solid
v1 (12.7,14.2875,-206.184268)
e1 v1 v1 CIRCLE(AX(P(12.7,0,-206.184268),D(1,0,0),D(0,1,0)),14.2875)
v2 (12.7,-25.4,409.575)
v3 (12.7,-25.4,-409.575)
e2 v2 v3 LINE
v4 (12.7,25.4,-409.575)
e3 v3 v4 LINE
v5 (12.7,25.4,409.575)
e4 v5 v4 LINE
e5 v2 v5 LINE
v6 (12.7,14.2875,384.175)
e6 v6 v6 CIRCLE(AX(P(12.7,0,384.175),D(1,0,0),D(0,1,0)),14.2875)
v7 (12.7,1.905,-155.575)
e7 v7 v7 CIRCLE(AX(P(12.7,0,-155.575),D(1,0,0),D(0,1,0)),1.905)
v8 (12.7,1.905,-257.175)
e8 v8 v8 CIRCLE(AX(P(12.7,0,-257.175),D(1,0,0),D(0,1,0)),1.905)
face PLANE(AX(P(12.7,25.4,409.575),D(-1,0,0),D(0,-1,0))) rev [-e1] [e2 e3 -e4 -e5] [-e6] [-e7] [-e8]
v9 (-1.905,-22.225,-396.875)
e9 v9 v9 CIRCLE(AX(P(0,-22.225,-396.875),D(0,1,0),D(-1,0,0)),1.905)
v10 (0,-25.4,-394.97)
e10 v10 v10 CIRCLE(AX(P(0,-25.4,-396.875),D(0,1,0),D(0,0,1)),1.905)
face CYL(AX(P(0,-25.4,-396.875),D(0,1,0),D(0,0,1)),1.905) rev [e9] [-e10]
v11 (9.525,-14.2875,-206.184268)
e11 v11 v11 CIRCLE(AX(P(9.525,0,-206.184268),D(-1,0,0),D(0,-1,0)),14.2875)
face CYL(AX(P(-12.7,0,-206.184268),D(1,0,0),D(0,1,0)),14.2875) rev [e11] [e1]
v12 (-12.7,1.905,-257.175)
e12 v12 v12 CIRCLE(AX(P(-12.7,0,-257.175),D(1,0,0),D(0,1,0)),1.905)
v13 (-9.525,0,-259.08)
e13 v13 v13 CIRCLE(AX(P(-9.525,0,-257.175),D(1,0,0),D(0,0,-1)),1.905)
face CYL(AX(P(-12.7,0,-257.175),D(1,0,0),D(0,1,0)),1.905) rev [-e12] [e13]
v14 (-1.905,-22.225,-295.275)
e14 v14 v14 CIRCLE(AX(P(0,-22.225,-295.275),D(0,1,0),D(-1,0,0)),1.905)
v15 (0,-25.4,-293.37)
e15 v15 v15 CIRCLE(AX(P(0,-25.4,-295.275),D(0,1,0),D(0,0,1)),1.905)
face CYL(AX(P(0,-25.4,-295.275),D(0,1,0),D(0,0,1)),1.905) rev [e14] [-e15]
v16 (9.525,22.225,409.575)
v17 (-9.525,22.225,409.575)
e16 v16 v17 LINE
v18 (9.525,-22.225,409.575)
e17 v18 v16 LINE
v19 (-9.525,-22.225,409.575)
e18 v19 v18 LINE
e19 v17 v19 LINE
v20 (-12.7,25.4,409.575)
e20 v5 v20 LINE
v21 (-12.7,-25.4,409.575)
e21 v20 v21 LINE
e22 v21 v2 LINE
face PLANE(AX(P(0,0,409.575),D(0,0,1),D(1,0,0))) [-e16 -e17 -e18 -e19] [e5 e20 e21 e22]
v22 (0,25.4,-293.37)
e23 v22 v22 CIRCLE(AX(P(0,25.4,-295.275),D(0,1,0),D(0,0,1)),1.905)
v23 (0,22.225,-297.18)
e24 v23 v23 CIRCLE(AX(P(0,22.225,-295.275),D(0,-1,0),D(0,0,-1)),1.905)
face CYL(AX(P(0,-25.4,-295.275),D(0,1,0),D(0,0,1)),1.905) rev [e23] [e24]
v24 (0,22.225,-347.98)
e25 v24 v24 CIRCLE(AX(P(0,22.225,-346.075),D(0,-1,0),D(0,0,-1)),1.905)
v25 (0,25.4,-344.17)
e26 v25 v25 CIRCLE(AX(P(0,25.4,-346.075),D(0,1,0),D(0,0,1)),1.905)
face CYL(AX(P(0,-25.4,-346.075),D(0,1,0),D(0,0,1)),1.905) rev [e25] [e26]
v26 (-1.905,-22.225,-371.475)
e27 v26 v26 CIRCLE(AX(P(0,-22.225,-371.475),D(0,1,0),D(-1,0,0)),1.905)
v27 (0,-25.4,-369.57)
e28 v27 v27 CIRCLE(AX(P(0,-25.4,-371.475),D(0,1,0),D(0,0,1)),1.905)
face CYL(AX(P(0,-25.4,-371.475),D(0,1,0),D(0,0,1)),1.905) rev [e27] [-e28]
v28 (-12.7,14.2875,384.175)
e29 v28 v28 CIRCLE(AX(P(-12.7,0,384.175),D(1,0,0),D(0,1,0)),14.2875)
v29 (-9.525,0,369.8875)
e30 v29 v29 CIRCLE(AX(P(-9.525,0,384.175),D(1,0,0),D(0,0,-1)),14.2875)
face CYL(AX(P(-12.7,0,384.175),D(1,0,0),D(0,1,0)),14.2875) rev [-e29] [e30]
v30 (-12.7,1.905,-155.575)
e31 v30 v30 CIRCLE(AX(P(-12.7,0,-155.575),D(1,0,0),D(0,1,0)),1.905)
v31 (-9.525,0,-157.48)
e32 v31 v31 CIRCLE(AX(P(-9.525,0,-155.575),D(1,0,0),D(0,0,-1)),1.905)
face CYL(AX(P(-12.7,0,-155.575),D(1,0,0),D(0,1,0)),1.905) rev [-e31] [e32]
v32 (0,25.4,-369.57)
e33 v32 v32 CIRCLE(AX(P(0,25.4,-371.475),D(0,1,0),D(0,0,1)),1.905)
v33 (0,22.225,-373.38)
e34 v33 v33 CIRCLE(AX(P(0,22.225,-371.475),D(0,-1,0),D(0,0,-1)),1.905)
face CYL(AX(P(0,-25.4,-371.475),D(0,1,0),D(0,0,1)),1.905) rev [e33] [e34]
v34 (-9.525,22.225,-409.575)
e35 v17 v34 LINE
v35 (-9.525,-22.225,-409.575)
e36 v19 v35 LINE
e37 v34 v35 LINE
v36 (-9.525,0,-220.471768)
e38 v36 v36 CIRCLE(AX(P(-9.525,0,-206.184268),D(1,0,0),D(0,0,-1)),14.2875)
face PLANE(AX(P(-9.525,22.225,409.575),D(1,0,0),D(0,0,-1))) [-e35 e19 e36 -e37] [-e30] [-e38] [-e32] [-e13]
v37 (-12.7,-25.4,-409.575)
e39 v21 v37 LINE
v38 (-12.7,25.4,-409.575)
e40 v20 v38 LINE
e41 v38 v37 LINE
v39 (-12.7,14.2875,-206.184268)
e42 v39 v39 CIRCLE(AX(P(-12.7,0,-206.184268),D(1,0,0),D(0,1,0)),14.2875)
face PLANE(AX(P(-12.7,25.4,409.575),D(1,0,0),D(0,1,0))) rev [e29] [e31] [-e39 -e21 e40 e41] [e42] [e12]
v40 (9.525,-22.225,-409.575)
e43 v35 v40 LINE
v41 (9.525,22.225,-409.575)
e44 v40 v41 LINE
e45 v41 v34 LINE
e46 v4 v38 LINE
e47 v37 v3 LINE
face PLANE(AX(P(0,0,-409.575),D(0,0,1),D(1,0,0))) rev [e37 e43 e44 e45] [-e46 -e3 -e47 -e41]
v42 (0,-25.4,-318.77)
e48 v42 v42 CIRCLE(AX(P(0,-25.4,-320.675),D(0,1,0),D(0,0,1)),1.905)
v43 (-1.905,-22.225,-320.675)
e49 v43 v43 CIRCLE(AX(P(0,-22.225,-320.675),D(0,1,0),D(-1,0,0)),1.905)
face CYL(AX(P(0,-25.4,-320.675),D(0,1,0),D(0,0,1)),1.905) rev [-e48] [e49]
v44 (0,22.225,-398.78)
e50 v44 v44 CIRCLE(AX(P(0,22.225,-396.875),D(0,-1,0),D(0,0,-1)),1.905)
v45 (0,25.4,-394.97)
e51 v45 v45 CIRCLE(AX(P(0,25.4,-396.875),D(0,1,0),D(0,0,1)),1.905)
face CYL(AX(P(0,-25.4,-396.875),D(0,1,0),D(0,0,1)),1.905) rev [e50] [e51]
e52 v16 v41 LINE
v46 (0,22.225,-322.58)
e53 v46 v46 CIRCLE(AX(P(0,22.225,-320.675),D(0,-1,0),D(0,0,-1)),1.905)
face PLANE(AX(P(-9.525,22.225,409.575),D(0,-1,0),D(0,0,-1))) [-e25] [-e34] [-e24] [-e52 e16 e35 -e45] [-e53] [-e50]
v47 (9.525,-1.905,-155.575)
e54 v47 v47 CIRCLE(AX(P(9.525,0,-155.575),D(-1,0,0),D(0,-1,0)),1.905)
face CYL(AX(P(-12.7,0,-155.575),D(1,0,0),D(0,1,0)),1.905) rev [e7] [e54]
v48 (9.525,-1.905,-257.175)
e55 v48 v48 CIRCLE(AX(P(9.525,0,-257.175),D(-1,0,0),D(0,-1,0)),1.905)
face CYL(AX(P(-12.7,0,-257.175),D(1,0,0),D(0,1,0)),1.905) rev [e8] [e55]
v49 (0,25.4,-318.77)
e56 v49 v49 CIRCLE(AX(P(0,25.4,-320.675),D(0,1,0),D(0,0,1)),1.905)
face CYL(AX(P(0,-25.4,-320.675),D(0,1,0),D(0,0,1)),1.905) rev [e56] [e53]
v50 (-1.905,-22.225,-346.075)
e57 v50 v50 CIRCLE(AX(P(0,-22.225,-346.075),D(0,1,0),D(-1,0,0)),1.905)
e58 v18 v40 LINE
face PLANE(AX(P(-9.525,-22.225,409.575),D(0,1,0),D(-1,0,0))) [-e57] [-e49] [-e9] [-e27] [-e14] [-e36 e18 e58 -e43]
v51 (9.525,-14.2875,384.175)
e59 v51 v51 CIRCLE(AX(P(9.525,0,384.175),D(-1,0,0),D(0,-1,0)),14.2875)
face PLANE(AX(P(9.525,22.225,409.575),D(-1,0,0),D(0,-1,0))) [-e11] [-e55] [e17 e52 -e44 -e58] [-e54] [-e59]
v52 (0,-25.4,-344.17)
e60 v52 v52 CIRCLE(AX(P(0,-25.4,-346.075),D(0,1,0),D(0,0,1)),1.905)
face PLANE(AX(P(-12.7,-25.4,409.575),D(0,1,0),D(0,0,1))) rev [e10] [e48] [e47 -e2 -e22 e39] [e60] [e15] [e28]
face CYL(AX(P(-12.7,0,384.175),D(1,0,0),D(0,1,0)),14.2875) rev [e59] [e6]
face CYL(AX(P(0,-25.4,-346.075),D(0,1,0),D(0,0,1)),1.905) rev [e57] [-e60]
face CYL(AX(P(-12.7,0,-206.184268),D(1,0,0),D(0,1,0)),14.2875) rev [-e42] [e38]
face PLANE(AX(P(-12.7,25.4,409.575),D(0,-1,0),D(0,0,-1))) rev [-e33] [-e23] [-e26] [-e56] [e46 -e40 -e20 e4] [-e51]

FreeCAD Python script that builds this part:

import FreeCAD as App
import Part
import Sketcher

V = App.Vector
Q = App.Units.Quantity

doc = App.newDocument("Part")
body = doc.addObject("PartDesign::Body", "Body")

# Sketch on XY plane
sketch1 = body.newObject("Sketcher::SketchObject", "Sketch")
sketch1.AttachmentSupport = (doc.getObject("XY_Plane"), [""])
sketch1.MapMode = "FlatFace"
sketch1.addGeometry([
    Part.LineSegment(V(-13, 25, 0), V(-13, -25, 0)),  # 0
    Part.LineSegment(V(-13, -25, 0), V(13, -25, 0)),  # 1
    Part.LineSegment(V(13, -25, 0), V(13, 25, 0)),  # 2
    Part.LineSegment(V(13, 25, 0), V(-13, 25, 0)),  # 3
    Part.LineSegment(V(10, -22, 0), V(-10, -22, 0)),  # 4
    Part.LineSegment(V(-10, -22, 0), V(-10, 22, 0)),  # 5
    Part.LineSegment(V(-10, 22, 0), V(10, 22, 0)),  # 6
    Part.LineSegment(V(10, 22, 0), V(10, -22, 0)),  # 7
], False)
sketch1.addConstraint([
    Sketcher.Constraint("Coincident", 0, 2, 1, 1),
    Sketcher.Constraint("Coincident", 1, 2, 2, 1),
    Sketcher.Constraint("Coincident", 2, 2, 3, 1),
    Sketcher.Constraint("Coincident", 3, 2, 0, 1),
    Sketcher.Constraint("Coincident", 4, 2, 5, 1),
    Sketcher.Constraint("Coincident", 5, 2, 6, 1),
    Sketcher.Constraint("Coincident", 6, 2, 7, 1),
    Sketcher.Constraint("Coincident", 7, 2, 4, 1),
    Sketcher.Constraint("Vertical", 0),
    Sketcher.Constraint("Horizontal", 1),
    Sketcher.Constraint("Vertical", 2),
    Sketcher.Constraint("Horizontal", 3),
    Sketcher.Constraint("Horizontal", 4),
    Sketcher.Constraint("Vertical", 5),
    Sketcher.Constraint("Horizontal", 6),
    Sketcher.Constraint("Vertical", 7),
    Sketcher.Constraint("Symmetric", 0, 2, 2, 2, -1, 1),
    Sketcher.Constraint("Symmetric", 4, 2, 6, 2, -1, 1),
    Sketcher.Constraint("DistanceX", 1, 1, 1, 2, Q("1 in")),
    Sketcher.Constraint("DistanceY", 0, 2, 0, 1, Q("2 in")),
    Sketcher.Constraint("DistanceX", 4, 2, 4, 1, Q("0.75 in")),
    Sketcher.Constraint("DistanceY", 5, 1, 5, 2, Q("1.75 in")),
])
pad1 = body.newObject("PartDesign::Pad", "Pad")
pad1.Profile = sketch1
pad1.Length = Q("32.25 in")
pad1.Midplane = True

# Sketch on XZ plane
sketch2 = body.newObject("Sketcher::SketchObject", "Sketch001")
sketch2.AttachmentSupport = (doc.getObject("XZ_Plane"), [""])
sketch2.MapMode = "FlatFace"
sketch2.AttachmentOffset = App.Placement(V(0, 0, -1 * 25.4), App.Rotation())
sketch2.addGeometry([
    Part.Circle(V(0, -396.9, 0), V(0, 0, 1), 1.9),  # 0
    Part.Circle(V(0, -371.5, 0), V(0, 0, 1), 1.9),  # 1
    Part.Circle(V(0, -346.1, 0), V(0, 0, 1), 1.9),  # 2
    Part.Circle(V(0, -320.7, 0), V(0, 0, 1), 1.9),  # 3
    Part.Circle(V(0, -295.3, 0), V(0, 0, 1), 1.9),  # 4
], False)
sketch2.addConstraint([
    Sketcher.Constraint("Equal", 0, 1),
    Sketcher.Constraint("Equal", 1, 2),
    Sketcher.Constraint("Equal", 2, 3),
    Sketcher.Constraint("Equal", 3, 4),
    Sketcher.Constraint("PointOnObject", 0, 3, -2),
    Sketcher.Constraint("PointOnObject", 1, 3, -2),
    Sketcher.Constraint("PointOnObject", 2, 3, -2),
    Sketcher.Constraint("PointOnObject", 3, 3, -2),
    Sketcher.Constraint("PointOnObject", 4, 3, -2),
    Sketcher.Constraint("Diameter", 0, Q("0.15 in")),
    Sketcher.Constraint("DistanceY", 0, 3, 1, 3, Q("1 in")),
    Sketcher.Constraint("DistanceY", 1, 3, 2, 3, Q("1 in")),
    Sketcher.Constraint("DistanceY", 2, 3, 3, 3, Q("1 in")),
    Sketcher.Constraint("DistanceY", 3, 3, 4, 3, Q("1 in")),
    Sketcher.Constraint("DistanceY", 0, 3, -1, 1, Q("15.625 in")),
])
pocket1 = body.newObject("PartDesign::Pocket", "Pocket")
pocket1.Profile = sketch2
pocket1.Type = "ThroughAll"
pocket1.Reversed = True

# Sketch on YZ plane
sketch3 = body.newObject("Sketcher::SketchObject", "Sketch002")
sketch3.AttachmentSupport = (doc.getObject("YZ_Plane"), [""])
sketch3.MapMode = "FlatFace"
sketch3.AttachmentOffset = App.Placement(V(0, 0, 0.5 * 25.4), App.Rotation())
sketch3.addGeometry([
    Part.Circle(V(0, -155.6, 0), V(0, 0, 1), 1.9),
    Part.Circle(V(0, -257.2, 0), V(0, 0, 1), 1.9),
    Part.Circle(V(0, -206.2, 0), V(0, 0, 1), 14.3),
    Part.Circle(V(0, 384.2, 0), V(0, 0, 1), 14.3),
], False)
sketch3.addConstraint([
    Sketcher.Constraint("Equal", 0, 1),
    Sketcher.Constraint("Equal", 2, 3),
    Sketcher.Constraint("PointOnObject", 0, 3, -2),
    Sketcher.Constraint("PointOnObject", 1, 3, -2),
    Sketcher.Constraint("PointOnObject", 2, 3, -2),
    Sketcher.Constraint("PointOnObject", 3, 3, -2),
    Sketcher.Constraint("Diameter", 0, Q("0.15 in")),
    Sketcher.Constraint("Diameter", 2, Q("1.125 in")),
    Sketcher.Constraint("DistanceY", 1, 3, 0, 3, Q("4 in")),
    Sketcher.Constraint("DistanceY", 0, 3, 3, 3, Q("21.25 in")),
    Sketcher.Constraint("DistanceY", 0, 3, -1, 1, Q("6.125 in")),
    Sketcher.Constraint("DistanceY", 2, 3, -1, 1, 206.184268),
])
pocket2 = body.newObject("PartDesign::Pocket", "Pocket001")
pocket2.Profile = sketch3
pocket2.Type = "ThroughAll"

doc.recompute()
